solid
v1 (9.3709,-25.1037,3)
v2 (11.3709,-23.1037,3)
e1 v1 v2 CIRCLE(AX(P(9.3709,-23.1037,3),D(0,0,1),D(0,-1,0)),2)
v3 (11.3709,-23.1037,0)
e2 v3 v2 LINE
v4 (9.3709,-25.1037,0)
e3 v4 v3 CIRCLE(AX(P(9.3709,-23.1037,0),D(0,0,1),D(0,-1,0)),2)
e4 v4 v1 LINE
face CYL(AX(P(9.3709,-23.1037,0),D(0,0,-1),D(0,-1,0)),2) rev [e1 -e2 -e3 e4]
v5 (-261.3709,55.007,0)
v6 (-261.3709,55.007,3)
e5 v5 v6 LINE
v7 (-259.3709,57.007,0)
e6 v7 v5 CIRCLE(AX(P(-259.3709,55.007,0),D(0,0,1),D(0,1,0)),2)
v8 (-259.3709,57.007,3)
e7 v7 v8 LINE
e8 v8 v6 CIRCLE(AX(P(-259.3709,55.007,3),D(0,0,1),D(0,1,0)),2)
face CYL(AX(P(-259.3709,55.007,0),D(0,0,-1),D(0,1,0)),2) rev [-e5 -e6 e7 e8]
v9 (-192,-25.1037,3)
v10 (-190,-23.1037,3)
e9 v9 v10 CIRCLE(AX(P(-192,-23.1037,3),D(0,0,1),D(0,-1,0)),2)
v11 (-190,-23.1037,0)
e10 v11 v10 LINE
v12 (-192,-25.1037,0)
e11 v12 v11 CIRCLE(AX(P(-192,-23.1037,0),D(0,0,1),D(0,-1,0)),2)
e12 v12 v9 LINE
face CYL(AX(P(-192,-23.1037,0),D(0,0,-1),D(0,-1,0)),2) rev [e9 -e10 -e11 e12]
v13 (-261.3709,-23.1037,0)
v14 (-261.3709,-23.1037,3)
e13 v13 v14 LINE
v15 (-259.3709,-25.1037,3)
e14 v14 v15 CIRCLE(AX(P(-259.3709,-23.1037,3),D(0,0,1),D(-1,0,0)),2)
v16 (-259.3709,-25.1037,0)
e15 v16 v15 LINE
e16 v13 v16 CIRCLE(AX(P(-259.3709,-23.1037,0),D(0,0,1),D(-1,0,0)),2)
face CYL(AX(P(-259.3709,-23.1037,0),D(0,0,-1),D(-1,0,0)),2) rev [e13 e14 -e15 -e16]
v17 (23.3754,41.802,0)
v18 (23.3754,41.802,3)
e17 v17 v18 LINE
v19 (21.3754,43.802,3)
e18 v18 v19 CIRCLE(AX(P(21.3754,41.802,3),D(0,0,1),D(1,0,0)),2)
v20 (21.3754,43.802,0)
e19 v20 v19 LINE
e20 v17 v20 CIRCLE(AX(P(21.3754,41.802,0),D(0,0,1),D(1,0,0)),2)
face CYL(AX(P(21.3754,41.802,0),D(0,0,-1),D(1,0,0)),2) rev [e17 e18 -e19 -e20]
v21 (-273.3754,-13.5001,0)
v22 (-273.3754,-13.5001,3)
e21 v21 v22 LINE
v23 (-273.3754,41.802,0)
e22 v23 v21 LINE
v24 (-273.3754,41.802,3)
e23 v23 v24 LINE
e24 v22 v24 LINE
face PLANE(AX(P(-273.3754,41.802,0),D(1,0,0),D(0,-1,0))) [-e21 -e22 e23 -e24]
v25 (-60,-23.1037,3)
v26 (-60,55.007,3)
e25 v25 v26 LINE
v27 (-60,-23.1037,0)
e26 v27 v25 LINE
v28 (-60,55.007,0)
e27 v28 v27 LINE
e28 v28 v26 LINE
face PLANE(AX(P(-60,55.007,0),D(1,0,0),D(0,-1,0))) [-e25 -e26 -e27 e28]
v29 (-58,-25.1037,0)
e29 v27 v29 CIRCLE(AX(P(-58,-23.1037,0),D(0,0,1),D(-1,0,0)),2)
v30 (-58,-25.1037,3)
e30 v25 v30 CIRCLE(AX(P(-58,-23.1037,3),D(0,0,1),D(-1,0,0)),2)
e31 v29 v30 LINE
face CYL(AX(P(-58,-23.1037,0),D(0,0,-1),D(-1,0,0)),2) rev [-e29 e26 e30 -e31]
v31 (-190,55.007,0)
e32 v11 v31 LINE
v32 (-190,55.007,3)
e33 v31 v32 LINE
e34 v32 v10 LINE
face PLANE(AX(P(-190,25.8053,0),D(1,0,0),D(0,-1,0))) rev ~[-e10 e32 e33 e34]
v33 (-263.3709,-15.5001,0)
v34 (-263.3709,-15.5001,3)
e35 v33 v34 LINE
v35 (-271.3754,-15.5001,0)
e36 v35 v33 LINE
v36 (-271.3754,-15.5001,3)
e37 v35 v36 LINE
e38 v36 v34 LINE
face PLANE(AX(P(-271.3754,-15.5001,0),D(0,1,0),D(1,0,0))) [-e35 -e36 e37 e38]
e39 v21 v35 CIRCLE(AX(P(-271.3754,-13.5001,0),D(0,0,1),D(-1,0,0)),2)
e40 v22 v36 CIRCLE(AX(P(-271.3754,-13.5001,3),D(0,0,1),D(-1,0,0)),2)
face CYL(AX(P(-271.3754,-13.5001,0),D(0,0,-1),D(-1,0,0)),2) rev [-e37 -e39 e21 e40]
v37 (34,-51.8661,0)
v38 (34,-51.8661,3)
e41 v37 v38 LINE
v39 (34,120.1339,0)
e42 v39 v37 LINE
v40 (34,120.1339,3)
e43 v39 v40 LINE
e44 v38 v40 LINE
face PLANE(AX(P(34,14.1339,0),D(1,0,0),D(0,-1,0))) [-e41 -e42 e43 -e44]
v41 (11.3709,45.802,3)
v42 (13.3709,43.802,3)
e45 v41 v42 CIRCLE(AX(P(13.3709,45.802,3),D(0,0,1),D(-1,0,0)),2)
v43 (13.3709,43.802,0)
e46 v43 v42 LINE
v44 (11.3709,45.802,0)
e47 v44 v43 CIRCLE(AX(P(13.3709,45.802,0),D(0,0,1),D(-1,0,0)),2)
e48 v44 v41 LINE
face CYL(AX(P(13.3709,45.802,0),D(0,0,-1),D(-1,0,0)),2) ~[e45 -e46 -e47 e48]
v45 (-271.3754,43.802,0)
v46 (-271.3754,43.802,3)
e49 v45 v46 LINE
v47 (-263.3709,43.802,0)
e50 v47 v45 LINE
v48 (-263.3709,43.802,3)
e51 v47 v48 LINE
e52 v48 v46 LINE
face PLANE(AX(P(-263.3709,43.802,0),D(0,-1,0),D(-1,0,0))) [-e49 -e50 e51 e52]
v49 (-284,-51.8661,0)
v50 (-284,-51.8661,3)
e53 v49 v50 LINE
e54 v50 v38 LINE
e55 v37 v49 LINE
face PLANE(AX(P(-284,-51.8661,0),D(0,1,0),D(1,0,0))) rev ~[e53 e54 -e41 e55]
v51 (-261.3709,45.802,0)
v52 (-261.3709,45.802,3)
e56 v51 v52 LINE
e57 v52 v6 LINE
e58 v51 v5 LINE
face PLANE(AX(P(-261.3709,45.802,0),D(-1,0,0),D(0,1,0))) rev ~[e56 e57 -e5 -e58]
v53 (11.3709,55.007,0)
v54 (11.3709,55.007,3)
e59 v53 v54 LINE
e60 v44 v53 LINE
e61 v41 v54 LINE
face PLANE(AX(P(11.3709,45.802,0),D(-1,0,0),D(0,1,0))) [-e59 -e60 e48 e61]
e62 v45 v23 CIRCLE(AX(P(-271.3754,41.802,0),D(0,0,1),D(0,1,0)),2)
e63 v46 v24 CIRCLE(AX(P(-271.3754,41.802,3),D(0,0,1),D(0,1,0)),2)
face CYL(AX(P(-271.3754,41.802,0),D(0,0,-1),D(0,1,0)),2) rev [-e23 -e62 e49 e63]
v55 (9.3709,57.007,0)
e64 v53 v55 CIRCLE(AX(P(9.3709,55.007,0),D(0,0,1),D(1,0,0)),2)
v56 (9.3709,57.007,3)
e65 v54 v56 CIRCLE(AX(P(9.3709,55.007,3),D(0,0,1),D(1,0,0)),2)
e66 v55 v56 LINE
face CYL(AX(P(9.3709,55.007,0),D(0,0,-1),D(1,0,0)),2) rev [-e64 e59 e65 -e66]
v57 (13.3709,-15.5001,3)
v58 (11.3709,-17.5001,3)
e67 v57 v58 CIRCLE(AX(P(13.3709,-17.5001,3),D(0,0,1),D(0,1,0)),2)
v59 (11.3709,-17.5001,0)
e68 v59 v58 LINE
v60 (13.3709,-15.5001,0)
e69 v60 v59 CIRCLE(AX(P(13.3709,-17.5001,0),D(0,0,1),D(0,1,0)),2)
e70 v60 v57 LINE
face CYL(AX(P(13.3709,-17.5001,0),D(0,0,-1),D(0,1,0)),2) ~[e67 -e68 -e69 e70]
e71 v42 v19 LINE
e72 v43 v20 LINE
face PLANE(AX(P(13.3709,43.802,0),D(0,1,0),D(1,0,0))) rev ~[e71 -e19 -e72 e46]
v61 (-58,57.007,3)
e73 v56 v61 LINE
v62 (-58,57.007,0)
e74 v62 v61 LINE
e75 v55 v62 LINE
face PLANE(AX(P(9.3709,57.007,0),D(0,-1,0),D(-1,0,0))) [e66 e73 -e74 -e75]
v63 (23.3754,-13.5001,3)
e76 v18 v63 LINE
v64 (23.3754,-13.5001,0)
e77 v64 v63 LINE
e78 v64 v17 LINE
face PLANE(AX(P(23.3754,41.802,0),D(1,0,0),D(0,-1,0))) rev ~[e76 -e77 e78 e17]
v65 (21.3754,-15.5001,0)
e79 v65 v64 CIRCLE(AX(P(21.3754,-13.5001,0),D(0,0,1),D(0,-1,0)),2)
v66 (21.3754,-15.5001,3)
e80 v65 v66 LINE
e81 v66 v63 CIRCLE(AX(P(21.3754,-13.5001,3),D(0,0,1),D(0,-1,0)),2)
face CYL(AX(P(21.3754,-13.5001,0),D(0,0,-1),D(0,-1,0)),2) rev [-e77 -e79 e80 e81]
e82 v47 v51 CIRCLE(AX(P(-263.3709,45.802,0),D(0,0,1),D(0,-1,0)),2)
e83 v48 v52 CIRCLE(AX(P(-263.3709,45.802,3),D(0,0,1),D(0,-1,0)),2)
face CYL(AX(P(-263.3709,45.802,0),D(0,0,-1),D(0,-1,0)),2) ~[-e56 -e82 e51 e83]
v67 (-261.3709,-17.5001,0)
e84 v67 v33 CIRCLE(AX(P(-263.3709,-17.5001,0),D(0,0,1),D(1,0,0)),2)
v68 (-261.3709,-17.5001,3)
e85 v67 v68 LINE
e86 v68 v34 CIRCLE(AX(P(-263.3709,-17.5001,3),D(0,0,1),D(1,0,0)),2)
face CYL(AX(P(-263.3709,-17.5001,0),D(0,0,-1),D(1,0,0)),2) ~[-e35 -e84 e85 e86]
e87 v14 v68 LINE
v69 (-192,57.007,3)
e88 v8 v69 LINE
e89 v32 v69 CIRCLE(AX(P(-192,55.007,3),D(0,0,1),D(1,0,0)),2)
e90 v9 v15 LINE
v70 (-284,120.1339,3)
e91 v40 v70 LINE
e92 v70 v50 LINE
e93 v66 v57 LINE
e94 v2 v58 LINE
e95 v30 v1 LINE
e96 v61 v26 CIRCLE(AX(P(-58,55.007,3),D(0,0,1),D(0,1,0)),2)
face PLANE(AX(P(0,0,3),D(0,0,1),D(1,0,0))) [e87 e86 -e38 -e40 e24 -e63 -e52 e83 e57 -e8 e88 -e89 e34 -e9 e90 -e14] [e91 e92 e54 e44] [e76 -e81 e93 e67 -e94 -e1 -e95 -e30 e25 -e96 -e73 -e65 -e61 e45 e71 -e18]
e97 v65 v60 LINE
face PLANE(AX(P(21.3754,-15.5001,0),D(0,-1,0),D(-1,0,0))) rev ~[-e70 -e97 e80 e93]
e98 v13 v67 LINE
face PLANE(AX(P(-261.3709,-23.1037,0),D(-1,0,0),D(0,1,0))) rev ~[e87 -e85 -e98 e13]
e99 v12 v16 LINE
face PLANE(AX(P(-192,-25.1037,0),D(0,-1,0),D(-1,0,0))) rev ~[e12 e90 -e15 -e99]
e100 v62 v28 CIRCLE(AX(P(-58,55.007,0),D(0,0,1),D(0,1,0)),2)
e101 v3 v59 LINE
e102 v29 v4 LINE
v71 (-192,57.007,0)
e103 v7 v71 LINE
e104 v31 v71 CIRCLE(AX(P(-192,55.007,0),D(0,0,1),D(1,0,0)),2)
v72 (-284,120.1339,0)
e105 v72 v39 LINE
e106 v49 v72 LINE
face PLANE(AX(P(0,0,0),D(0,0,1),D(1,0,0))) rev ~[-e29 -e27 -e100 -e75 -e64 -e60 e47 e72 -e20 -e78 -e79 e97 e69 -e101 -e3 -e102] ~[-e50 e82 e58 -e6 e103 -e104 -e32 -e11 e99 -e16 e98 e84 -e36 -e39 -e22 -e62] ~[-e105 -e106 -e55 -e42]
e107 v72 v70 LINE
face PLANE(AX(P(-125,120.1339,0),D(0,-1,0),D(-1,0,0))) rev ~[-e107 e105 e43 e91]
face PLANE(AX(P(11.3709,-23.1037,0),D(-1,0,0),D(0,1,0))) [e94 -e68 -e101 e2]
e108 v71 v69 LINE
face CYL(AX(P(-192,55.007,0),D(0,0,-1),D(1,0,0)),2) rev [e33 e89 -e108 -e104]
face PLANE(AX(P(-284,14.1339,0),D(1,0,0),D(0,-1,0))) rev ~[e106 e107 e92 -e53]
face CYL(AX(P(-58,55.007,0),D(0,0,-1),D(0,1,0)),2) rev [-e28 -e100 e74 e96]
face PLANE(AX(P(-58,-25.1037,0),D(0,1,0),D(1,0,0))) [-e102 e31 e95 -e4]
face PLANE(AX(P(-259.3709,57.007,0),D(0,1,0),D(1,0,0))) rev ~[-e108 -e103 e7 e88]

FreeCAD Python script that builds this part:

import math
import FreeCAD as App
import Part
import Sketcher
from FreeCAD import Vector

doc = App.newDocument("Part")
params = doc.addObject("Spreadsheet::Sheet", "Params")
for row, (alias, value) in enumerate([
    ("sketch1_radius", "2 mm"),
    ("sketch1_height", "172 mm"),
    ("sketch1_width", "318 mm"),
    ("pad1_length", "3 mm"),
], start=1):
    params.set(f"A{row}", alias)
    params.set(f"B{row}", "=" + value)
    params.setAlias(f"B{row}", alias)

body = doc.addObject("PartDesign::Body", "Body")

# Sketch on XY plane
sketch1 = doc.addObject("Sketcher::SketchObject", "Sketch")
body.addObject(sketch1)
sketch1.AttachmentSupport = (doc.XY_Plane, [""])
sketch1.MapMode = "FlatFace"
sketch1.addGeometry(Part.LineSegment(Vector(-284, -51.9, 0), Vector(34, -51.9, 0)), False)
sketch1.addGeometry(Part.LineSegment(Vector(34, -51.9, 0), Vector(34, 120.1, 0)), False)
sketch1.addGeometry(Part.LineSegment(Vector(34, 120.1, 0), Vector(-284, 120.1, 0)), False)
sketch1.addGeometry(Part.LineSegment(Vector(-284, 120.1, 0), Vector(-284, -51.9, 0)), False)
sketch1.addGeometry(Part.ArcOfCircle(Part.Circle(Vector(-259.4, 55, 0), Vector(0, 0, 1), 2), math.radians(90), math.radians(180)), False)
sketch1.addGeometry(Part.LineSegment(Vector(-259.4, 57, 0), Vector(-192, 57, 0)), False)
sketch1.addGeometry(Part.ArcOfCircle(Part.Circle(Vector(-192, 55, 0), Vector(0, 0, 1), 2), math.radians(0), math.radians(90)), False)
sketch1.addGeometry(Part.LineSegment(Vector(-190, 55, 0), Vector(-190, -23.1, 0)), False)
sketch1.addGeometry(Part.ArcOfCircle(Part.Circle(Vector(-192, -23.1, 0), Vector(0, 0, 1), 2), math.radians(-90), math.radians(0)), False)
sketch1.addGeometry(Part.LineSegment(Vector(-192, -25.1, 0), Vector(-259.4, -25.1, 0)), False)
sketch1.addGeometry(Part.ArcOfCircle(Part.Circle(Vector(-259.4, -23.1, 0), Vector(0, 0, 1), 2), math.radians(180), math.radians(270)), False)
sketch1.addGeometry(Part.LineSegment(Vector(-261.4, -23.1, 0), Vector(-261.4, -17.5, 0)), False)
sketch1.addGeometry(Part.ArcOfCircle(Part.Circle(Vector(-263.4, -17.5, 0), Vector(0, 0, 1), 2), math.radians(0), math.radians(90)), False)
sketch1.addGeometry(Part.LineSegment(Vector(-263.4, -15.5, 0), Vector(-271.4, -15.5, 0)), False)
sketch1.addGeometry(Part.ArcOfCircle(Part.Circle(Vector(-271.4, -13.5, 0), Vector(0, 0, 1), 2), math.radians(180), math.radians(270)), False)
sketch1.addGeometry(Part.LineSegment(Vector(-273.4, -13.5, 0), Vector(-273.4, 41.8, 0)), False)
sketch1.addGeometry(Part.ArcOfCircle(Part.Circle(Vector(-271.4, 41.8, 0), Vector(0, 0, 1), 2), math.radians(90), math.radians(180)), False)
sketch1.addGeometry(Part.LineSegment(Vector(-271.4, 43.8, 0), Vector(-263.4, 43.8, 0)), False)
sketch1.addGeometry(Part.ArcOfCircle(Part.Circle(Vector(-263.4, 45.8, 0), Vector(0, 0, 1), 2), math.radians(-90), math.radians(0)), False)
sketch1.addGeometry(Part.LineSegment(Vector(-261.4, 45.8, 0), Vector(-261.4, 55, 0)), False)
sketch1.addGeometry(Part.LineSegment(Vector(23.4, 41.8, 0), Vector(23.4, -13.5, 0)), False)
sketch1.addGeometry(Part.ArcOfCircle(Part.Circle(Vector(21.4, -13.5, 0), Vector(0, 0, 1), 2), math.radians(-90), math.radians(0)), False)
sketch1.addGeometry(Part.LineSegment(Vector(21.4, -15.5, 0), Vector(13.4, -15.5, 0)), False)
sketch1.addGeometry(Part.ArcOfCircle(Part.Circle(Vector(13.4, -17.5, 0), Vector(0, 0, 1), 2), math.radians(90), math.radians(180)), False)
sketch1.addGeometry(Part.LineSegment(Vector(11.4, -17.5, 0), Vector(11.4, -23.1, 0)), False)
sketch1.addGeometry(Part.ArcOfCircle(Part.Circle(Vector(9.4, -23.1, 0), Vector(0, 0, 1), 2), math.radians(-90), math.radians(0)), False)
sketch1.addGeometry(Part.LineSegment(Vector(9.4, -25.1, 0), Vector(-58, -25.1, 0)), False)
sketch1.addGeometry(Part.ArcOfCircle(Part.Circle(Vector(-58, -23.1, 0), Vector(0, 0, 1), 2), math.radians(180), math.radians(270)), False)
sketch1.addGeometry(Part.LineSegment(Vector(-60, -23.1, 0), Vector(-60, 55, 0)), False)
sketch1.addGeometry(Part.ArcOfCircle(Part.Circle(Vector(-58, 55, 0), Vector(0, 0, 1), 2), math.radians(90), math.radians(180)), False)
sketch1.addGeometry(Part.LineSegment(Vector(-58, 57, 0), Vector(9.4, 57, 0)), False)
sketch1.addGeometry(Part.ArcOfCircle(Part.Circle(Vector(9.4, 55, 0), Vector(0, 0, 1), 2), math.radians(0), math.radians(90)), False)
sketch1.addGeometry(Part.LineSegment(Vector(11.4, 55, 0), Vector(11.4, 45.8, 0)), False)
sketch1.addGeometry(Part.ArcOfCircle(Part.Circle(Vector(13.4, 45.8, 0), Vector(0, 0, 1), 2), math.radians(180), math.radians(270)), False)
sketch1.addGeometry(Part.LineSegment(Vector(13.4, 43.8, 0), Vector(21.4, 43.8, 0)), False)
sketch1.addGeometry(Part.ArcOfCircle(Part.Circle(Vector(21.4, 41.8, 0), Vector(0, 0, 1), 2), math.radians(0), math.radians(90)), False)
sketch1.addConstraint(Sketcher.Constraint("Coincident", 0, 2, 1, 1))
sketch1.addConstraint(Sketcher.Constraint("Coincident", 1, 2, 2, 1))
sketch1.addConstraint(Sketcher.Constraint("Coincident", 2, 2, 3, 1))
sketch1.addConstraint(Sketcher.Constraint("Coincident", 3, 2, 0, 1))
sketch1.addConstraint(Sketcher.Constraint("Tangent", 4, 1, 5, 1))
sketch1.addConstraint(Sketcher.Constraint("Tangent", 5, 2, 6, 2))
sketch1.addConstraint(Sketcher.Constraint("Tangent", 6, 1, 7, 1))
sketch1.addConstraint(Sketcher.Constraint("Tangent", 7, 2, 8, 2))
sketch1.addConstraint(Sketcher.Constraint("Tangent", 8, 1, 9, 1))
sketch1.addConstraint(Sketcher.Constraint("Tangent", 9, 2, 10, 2))
sketch1.addConstraint(Sketcher.Constraint("Tangent", 10, 1, 11, 1))
sketch1.addConstraint(Sketcher.Constraint("Tangent", 11, 2, 12, 1))
sketch1.addConstraint(Sketcher.Constraint("Tangent", 12, 2, 13, 1))
sketch1.addConstraint(Sketcher.Constraint("Tangent", 13, 2, 14, 2))
sketch1.addConstraint(Sketcher.Constraint("Tangent", 14, 1, 15, 1))
sketch1.addConstraint(Sketcher.Constraint("Tangent", 15, 2, 16, 2))
sketch1.addConstraint(Sketcher.Constraint("Tangent", 16, 1, 17, 1))
sketch1.addConstraint(Sketcher.Constraint("Tangent", 17, 2, 18, 1))
sketch1.addConstraint(Sketcher.Constraint("Tangent", 18, 2, 19, 1))
sketch1.addConstraint(Sketcher.Constraint("Tangent", 19, 2, 4, 2))
sketch1.addConstraint(Sketcher.Constraint("Tangent", 20, 2, 21, 2))
sketch1.addConstraint(Sketcher.Constraint("Tangent", 21, 1, 22, 1))
sketch1.addConstraint(Sketcher.Constraint("Tangent", 22, 2, 23, 1))
sketch1.addConstraint(Sketcher.Constraint("Tangent", 23, 2, 24, 1))
sketch1.addConstraint(Sketcher.Constraint("Tangent", 24, 2, 25, 2))
sketch1.addConstraint(Sketcher.Constraint("Tangent", 25, 1, 26, 1))
sketch1.addConstraint(Sketcher.Constraint("Tangent", 26, 2, 27, 2))
sketch1.addConstraint(Sketcher.Constraint("Tangent", 27, 1, 28, 1))
sketch1.addConstraint(Sketcher.Constraint("Tangent", 28, 2, 29, 2))
sketch1.addConstraint(Sketcher.Constraint("Tangent", 29, 1, 30, 1))
sketch1.addConstraint(Sketcher.Constraint("Tangent", 30, 2, 31, 2))
sketch1.addConstraint(Sketcher.Constraint("Tangent", 31, 1, 32, 1))
sketch1.addConstraint(Sketcher.Constraint("Tangent", 32, 2, 33, 1))
sketch1.addConstraint(Sketcher.Constraint("Tangent", 33, 2, 34, 1))
sketch1.addConstraint(Sketcher.Constraint("Tangent", 34, 2, 35, 2))
sketch1.addConstraint(Sketcher.Constraint("Tangent", 35, 1, 20, 1))
sketch1.addConstraint(Sketcher.Constraint("Horizontal", 0))
sketch1.addConstraint(Sketcher.Constraint("Vertical", 1))
sketch1.addConstraint(Sketcher.Constraint("Horizontal", 2))
sketch1.addConstraint(Sketcher.Constraint("Vertical", 3))
sketch1.addConstraint(Sketcher.Constraint("Horizontal", 5))
sketch1.addConstraint(Sketcher.Constraint("Vertical", 7))
sketch1.addConstraint(Sketcher.Constraint("Horizontal", 9))
sketch1.addConstraint(Sketcher.Constraint("Vertical", 11))
sketch1.addConstraint(Sketcher.Constraint("Horizontal", 13))
sketch1.addConstraint(Sketcher.Constraint("Vertical", 15))
sketch1.addConstraint(Sketcher.Constraint("Horizontal", 17))
sketch1.addConstraint(Sketcher.Constraint("Vertical", 19))
sketch1.addConstraint(Sketcher.Constraint("Vertical", 20))
sketch1.addConstraint(Sketcher.Constraint("Horizontal", 22))
sketch1.addConstraint(Sketcher.Constraint("Vertical", 24))
sketch1.addConstraint(Sketcher.Constraint("Horizontal", 26))
sketch1.addConstraint(Sketcher.Constraint("Vertical", 28))
sketch1.addConstraint(Sketcher.Constraint("Horizontal", 30))
sketch1.addConstraint(Sketcher.Constraint("Vertical", 32))
sketch1.addConstraint(Sketcher.Constraint("Horizontal", 34))
sketch1.addConstraint(Sketcher.Constraint("Equal", 4, 6))
sketch1.addConstraint(Sketcher.Constraint("Equal", 6, 8))
sketch1.addConstraint(Sketcher.Constraint("Equal", 8, 10))
sketch1.addConstraint(Sketcher.Constraint("Equal", 10, 12))
sketch1.addConstraint(Sketcher.Constraint("Equal", 12, 14))
sketch1.addConstraint(Sketcher.Constraint("Equal", 14, 16))
sketch1.addConstraint(Sketcher.Constraint("Equal", 16, 18))
sketch1.addConstraint(Sketcher.Constraint("Equal", 18, 21))
sketch1.addConstraint(Sketcher.Constraint("Equal", 21, 23))
sketch1.addConstraint(Sketcher.Constraint("Equal", 23, 25))
sketch1.addConstraint(Sketcher.Constraint("Equal", 25, 27))
sketch1.addConstraint(Sketcher.Constraint("Equal", 27, 29))
sketch1.addConstraint(Sketcher.Constraint("Equal", 29, 31))
sketch1.addConstraint(Sketcher.Constraint("Equal", 31, 33))
sketch1.addConstraint(Sketcher.Constraint("Equal", 33, 35))
sketch1.addConstraint(Sketcher.Constraint("Horizontal", 14, 3, 21, 3))
sketch1.addConstraint(Sketcher.Constraint("Horizontal", 10, 3, 25, 3))
sketch1.addConstraint(Sketcher.Constraint("Horizontal", 6, 3, 29, 3))
sketch1.addConstraint(Sketcher.Constraint("Horizontal", 18, 3, 33, 3))
sketch1.addConstraint(Sketcher.Constraint("Vertical", 4, 3, 10, 3))
sketch1.addConstraint(Sketcher.Constraint("Vertical", 25, 3, 31, 3))
sketch1.addConstraint(Sketcher.Constraint("Equal", 17, 22))
sketch1.addConstraint(Sketcher.Constraint("Equal", 9, 26))
sketch1.addConstraint(Sketcher.Constraint("Radius", 4, 2.0))
sketch1.addConstraint(Sketcher.Constraint("DistanceY", 1, 1, 1, 2, 172.0))
sketch1.addConstraint(Sketcher.Constraint("DistanceX", 0, 1, 0, 2, 318.0))
sketch1.addConstraint(Sketcher.Constraint("DistanceX", 6, 3, -1, 1, 192.0))
sketch1.addConstraint(Sketcher.Constraint("DistanceX", 27, 3, -1, 1, 58.0))
sketch1.addConstraint(Sketcher.Constraint("DistanceX", -1, 1, 0, 2, 34.0))
sketch1.addConstraint(Sketcher.Constraint("DistanceY", 12, 3, -1, 1, 17.5))
sketch1.addConstraint(Sketcher.Constraint("DistanceX", 5, 1, 5, 2, 67.371))
sketch1.addConstraint(Sketcher.Constraint("DistanceY", 15, 1, 15, 2, 55.302))
sketch1.addConstraint(Sketcher.Constraint("DistanceY", 19, 1, 19, 2, 9.205))
sketch1.addConstraint(Sketcher.Constraint("DistanceX", 13, 2, 13, 1, 8.0045))
sketch1.addConstraint(Sketcher.Constraint("DistanceY", 7, 2, 7, 1, 78.1107))
sketch1.addConstraint(Sketcher.Constraint("DistanceY", 0, 2, -1, 1, 51.866))
sketch1.setExpression("Constraints[79]", "Params.sketch1_radius")
sketch1.setExpression("Constraints[80]", "Params.sketch1_height")
sketch1.setExpression("Constraints[81]", "Params.sketch1_width")
pad1 = doc.addObject("PartDesign::Pad", "Pad")
body.addObject(pad1)
pad1.Profile = sketch1
pad1.setExpression("Length", "Params.pad1_length")

doc.recompute()
